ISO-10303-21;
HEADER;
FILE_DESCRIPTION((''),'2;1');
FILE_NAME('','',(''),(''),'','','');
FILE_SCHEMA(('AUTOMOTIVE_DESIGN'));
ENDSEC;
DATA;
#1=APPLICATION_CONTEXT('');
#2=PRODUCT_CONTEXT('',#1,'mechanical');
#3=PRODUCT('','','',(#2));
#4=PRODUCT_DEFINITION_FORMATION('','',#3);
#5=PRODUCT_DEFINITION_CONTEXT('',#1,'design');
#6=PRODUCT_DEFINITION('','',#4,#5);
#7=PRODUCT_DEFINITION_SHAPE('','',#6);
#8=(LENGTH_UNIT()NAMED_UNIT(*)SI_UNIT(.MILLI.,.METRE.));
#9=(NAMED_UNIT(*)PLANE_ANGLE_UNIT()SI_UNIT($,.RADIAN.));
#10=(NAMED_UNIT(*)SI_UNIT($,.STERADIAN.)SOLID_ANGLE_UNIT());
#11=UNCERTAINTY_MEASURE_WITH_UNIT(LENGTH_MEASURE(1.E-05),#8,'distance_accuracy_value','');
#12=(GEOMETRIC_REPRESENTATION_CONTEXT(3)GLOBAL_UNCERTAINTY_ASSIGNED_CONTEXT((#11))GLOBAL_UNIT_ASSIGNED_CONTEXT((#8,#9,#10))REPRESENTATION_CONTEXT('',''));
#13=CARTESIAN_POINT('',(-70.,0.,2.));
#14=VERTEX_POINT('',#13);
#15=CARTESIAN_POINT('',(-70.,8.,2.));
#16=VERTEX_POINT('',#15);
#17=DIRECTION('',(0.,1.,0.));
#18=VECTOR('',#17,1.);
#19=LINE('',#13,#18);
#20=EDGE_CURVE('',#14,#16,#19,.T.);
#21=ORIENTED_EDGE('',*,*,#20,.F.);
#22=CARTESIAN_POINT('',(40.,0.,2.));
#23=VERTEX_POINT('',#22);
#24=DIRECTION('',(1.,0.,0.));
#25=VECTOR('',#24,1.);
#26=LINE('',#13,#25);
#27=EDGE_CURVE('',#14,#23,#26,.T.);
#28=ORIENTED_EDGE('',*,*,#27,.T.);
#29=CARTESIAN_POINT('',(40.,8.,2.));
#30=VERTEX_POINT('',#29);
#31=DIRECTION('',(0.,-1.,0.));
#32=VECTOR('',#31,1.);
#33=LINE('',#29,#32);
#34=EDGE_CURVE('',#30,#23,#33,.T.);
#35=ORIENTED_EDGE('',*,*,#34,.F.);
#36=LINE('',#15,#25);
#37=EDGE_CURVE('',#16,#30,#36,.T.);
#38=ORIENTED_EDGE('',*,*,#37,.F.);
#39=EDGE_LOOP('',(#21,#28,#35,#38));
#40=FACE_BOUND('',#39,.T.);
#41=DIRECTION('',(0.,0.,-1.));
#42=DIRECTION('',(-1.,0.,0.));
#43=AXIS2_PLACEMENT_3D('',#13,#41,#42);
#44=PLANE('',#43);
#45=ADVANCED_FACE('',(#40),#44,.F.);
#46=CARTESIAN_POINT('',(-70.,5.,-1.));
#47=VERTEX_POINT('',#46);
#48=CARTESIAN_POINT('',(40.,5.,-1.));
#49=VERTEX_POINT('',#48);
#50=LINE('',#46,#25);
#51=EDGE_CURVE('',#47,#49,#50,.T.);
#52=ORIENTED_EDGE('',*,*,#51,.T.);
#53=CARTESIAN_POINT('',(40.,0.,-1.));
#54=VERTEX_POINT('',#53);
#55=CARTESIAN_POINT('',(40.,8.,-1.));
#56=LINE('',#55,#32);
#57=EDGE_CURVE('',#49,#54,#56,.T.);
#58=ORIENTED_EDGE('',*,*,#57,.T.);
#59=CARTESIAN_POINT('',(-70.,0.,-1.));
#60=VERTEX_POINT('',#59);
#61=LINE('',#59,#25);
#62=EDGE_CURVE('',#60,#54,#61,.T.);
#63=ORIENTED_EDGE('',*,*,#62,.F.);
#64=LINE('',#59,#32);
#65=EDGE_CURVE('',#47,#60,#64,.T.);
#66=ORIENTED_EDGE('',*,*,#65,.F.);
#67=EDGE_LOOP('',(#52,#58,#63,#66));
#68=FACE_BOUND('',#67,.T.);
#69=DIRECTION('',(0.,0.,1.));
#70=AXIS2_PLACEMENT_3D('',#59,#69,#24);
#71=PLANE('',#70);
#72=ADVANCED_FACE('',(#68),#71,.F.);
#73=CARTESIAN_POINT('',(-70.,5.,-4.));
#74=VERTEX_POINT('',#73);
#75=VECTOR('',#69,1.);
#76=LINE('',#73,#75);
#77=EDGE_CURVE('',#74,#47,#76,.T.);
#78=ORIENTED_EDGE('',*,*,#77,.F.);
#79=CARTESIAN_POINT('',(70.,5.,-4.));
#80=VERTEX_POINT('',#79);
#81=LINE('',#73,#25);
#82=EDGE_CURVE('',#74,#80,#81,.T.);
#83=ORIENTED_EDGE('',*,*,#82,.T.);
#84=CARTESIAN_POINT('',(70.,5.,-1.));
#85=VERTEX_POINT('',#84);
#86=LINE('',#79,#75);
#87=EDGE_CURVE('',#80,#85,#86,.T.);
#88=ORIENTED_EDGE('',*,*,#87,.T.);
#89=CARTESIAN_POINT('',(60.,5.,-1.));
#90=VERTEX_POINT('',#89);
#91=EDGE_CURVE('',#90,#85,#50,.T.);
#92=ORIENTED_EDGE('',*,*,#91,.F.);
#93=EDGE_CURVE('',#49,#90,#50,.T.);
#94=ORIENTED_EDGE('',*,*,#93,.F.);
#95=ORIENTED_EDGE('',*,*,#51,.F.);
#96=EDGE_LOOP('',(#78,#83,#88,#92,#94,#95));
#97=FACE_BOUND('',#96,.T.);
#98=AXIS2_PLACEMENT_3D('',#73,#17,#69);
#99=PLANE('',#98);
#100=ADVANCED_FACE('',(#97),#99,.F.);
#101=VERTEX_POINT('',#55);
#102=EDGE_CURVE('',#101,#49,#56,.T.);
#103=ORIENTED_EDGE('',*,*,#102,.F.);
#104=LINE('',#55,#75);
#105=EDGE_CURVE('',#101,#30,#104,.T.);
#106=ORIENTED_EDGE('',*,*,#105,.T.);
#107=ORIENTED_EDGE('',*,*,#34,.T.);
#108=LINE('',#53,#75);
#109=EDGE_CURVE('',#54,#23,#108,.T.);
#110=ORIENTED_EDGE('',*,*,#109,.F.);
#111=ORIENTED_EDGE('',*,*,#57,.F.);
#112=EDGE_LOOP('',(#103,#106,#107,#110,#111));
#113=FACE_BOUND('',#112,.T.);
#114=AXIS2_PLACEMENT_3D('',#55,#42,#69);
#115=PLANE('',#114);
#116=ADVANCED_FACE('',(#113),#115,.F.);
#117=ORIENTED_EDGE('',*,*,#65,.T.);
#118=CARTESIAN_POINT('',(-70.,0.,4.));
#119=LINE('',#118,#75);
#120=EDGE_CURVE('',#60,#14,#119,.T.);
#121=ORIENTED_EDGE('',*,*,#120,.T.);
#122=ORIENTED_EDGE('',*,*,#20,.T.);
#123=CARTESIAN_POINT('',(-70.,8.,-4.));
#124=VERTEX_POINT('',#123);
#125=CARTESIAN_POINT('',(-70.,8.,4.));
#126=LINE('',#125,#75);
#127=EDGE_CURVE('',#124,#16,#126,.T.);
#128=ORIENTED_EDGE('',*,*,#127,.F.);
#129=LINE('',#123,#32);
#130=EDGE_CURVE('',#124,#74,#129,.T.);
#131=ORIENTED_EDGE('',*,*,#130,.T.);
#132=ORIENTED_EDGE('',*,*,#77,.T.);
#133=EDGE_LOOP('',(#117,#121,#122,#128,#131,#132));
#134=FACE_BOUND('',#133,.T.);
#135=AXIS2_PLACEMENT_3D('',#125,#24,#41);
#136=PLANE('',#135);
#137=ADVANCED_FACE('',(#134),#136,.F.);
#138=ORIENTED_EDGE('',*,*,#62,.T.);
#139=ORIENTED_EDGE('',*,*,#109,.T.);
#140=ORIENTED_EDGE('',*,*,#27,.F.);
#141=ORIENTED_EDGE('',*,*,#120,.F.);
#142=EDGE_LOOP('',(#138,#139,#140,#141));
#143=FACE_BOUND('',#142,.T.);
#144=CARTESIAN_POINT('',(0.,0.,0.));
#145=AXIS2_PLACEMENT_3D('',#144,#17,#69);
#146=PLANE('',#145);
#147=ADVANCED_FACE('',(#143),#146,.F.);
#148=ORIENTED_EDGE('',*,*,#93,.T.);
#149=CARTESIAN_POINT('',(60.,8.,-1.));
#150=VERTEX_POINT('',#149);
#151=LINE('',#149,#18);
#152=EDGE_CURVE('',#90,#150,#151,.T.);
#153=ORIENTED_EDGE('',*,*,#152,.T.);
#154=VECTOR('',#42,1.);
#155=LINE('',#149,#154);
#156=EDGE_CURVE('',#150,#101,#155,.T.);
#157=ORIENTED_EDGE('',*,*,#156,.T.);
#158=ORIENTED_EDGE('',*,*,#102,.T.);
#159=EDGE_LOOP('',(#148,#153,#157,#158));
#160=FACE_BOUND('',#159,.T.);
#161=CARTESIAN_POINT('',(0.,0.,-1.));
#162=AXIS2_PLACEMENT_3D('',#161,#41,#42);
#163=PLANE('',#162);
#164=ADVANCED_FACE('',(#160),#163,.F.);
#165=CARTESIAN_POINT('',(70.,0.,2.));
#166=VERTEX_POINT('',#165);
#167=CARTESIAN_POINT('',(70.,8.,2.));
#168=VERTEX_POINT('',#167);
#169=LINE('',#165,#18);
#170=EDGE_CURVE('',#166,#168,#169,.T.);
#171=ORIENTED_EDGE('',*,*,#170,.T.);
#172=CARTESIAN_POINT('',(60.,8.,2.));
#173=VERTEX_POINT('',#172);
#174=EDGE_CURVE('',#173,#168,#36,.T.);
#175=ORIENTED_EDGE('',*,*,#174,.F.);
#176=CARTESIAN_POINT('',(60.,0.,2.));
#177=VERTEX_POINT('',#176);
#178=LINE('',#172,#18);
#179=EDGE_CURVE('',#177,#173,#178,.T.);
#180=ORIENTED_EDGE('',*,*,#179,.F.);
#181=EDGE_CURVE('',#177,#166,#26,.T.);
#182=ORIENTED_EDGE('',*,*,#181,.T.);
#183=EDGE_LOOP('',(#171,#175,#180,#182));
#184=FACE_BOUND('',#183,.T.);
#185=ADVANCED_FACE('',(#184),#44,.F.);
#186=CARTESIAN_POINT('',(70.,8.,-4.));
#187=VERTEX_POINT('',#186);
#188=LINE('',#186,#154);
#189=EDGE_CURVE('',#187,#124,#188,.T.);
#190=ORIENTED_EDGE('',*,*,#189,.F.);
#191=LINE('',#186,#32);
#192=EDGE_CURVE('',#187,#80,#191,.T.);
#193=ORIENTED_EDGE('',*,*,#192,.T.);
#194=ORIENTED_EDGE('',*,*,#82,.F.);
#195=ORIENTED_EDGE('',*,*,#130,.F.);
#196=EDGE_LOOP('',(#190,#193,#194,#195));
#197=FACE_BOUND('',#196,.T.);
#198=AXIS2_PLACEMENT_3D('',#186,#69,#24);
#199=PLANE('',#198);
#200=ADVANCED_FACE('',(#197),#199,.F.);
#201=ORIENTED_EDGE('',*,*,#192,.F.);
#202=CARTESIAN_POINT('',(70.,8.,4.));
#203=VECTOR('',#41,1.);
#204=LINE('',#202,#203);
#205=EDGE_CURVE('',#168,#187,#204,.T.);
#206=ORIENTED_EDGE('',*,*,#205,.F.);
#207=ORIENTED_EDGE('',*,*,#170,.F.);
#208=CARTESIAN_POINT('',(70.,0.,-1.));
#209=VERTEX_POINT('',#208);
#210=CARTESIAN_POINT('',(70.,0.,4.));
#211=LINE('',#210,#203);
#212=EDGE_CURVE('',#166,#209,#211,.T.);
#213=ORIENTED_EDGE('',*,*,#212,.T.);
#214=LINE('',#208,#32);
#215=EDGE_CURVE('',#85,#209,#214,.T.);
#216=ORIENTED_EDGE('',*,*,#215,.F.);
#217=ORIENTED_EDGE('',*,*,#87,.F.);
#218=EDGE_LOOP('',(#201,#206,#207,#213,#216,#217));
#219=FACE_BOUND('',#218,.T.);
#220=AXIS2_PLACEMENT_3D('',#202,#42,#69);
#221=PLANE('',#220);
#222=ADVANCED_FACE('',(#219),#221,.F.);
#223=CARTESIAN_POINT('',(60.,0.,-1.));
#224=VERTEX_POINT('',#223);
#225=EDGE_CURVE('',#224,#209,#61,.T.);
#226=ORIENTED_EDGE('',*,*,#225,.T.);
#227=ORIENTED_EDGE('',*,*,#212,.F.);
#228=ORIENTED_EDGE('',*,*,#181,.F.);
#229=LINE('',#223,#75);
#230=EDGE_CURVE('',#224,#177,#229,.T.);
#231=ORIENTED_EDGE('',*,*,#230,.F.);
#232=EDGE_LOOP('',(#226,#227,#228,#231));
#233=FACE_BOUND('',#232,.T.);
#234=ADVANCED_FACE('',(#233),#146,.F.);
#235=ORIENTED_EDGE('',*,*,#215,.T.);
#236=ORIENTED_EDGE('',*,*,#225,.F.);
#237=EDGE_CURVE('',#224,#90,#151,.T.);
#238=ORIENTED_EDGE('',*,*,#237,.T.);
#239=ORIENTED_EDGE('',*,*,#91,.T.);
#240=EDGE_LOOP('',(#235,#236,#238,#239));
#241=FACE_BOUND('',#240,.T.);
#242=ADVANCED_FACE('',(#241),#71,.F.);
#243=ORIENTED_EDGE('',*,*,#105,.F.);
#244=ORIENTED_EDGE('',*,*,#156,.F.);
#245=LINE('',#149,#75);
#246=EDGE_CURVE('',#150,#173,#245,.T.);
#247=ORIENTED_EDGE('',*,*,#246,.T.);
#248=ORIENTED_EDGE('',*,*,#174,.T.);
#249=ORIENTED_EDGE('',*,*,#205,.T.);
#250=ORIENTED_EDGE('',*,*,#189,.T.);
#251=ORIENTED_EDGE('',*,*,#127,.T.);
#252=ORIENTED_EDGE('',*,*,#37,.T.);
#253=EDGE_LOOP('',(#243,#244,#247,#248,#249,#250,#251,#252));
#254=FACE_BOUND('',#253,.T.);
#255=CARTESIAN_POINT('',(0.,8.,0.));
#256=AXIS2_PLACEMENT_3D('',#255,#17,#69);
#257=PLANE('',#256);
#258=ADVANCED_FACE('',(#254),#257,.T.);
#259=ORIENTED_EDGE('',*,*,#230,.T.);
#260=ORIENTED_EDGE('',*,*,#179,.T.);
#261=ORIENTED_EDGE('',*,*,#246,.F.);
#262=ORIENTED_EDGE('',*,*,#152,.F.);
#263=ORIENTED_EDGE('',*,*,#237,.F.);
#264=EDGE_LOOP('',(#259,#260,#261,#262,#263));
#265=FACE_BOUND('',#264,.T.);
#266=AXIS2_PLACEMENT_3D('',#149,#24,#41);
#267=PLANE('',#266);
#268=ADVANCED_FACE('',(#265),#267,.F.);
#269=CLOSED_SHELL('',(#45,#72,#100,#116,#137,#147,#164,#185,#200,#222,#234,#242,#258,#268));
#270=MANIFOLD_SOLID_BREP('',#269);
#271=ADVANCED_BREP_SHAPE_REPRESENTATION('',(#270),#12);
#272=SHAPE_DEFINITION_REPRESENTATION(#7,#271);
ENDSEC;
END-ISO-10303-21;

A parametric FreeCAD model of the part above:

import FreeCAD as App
import Part
import Sketcher

doc = App.newDocument("Part")
params = doc.addObject("Spreadsheet::Sheet", "Params")
for row, (alias, value) in enumerate([
    ("sketch1_width", "140 mm"),
    ("sketch1_height", "8 mm"),
    ("pad1_length", "8 mm"),
    ("sketch2_width", "5 mm"),
    ("sketch2_width2", "8 mm"),
    ("sketch2_height", "3 mm"),
    ("sketch2_height2", "2 mm"),
    ("pocket1_length", "140 mm"),
    ("sketch3_width", "20 mm"),
    ("sketch3_height", "8 mm"),
    ("pocket2_length", "3 mm"),
], start=1):
    params.set(f"A{row}", alias)
    params.set(f"B{row}", "=" + value)
    params.setAlias(f"B{row}", alias)

body = doc.addObject("PartDesign::Body", "Body")

sketch1 = body.newObject("Sketcher::SketchObject", "Sketch")
sketch1.AttachmentSupport = (doc.getObject("XZ_Plane"), [""])
sketch1.MapMode = "FlatFace"
sketch1.addGeometry(Part.LineSegment(App.Vector(-70, -4, 0), App.Vector(-70, 4, 0)), False)
sketch1.addGeometry(Part.LineSegment(App.Vector(-70, 4, 0), App.Vector(70, 4, 0)), False)
sketch1.addGeometry(Part.LineSegment(App.Vector(70, 4, 0), App.Vector(70, -4, 0)), False)
sketch1.addGeometry(Part.LineSegment(App.Vector(70, -4, 0), App.Vector(-70, -4, 0)), False)
sketch1.addConstraint(Sketcher.Constraint("Coincident", 0, 2, 1, 1))
sketch1.addConstraint(Sketcher.Constraint("Coincident", 1, 2, 2, 1))
sketch1.addConstraint(Sketcher.Constraint("Coincident", 2, 2, 3, 1))
sketch1.addConstraint(Sketcher.Constraint("Coincident", 3, 2, 0, 1))
sketch1.addConstraint(Sketcher.Constraint("Vertical", 0))
sketch1.addConstraint(Sketcher.Constraint("Horizontal", 1))
sketch1.addConstraint(Sketcher.Constraint("Vertical", 2))
sketch1.addConstraint(Sketcher.Constraint("Horizontal", 3))
sketch1.addConstraint(Sketcher.Constraint("Symmetric", 0, 2, 2, 2, -1, 1))
sketch1.addConstraint(Sketcher.Constraint("DistanceX", 1, 1, 1, 2, 140.0))
sketch1.addConstraint(Sketcher.Constraint("DistanceY", 0, 1, 0, 2, 8.0))
sketch1.setExpression("Constraints[9]", "Params.sketch1_width")
sketch1.setExpression("Constraints[10]", "Params.sketch1_height")
pad1 = body.newObject("PartDesign::Pad", "Pad")
pad1.Profile = sketch1
pad1.setExpression("Length", "Params.pad1_length")
pad1.Reversed = True

sketch2 = body.newObject("Sketcher::SketchObject", "Sketch001")
sketch2.AttachmentSupport = (doc.getObject("YZ_Plane"), [""])
sketch2.MapMode = "FlatFace"
sketch2.AttachmentOffset = App.Placement(App.Vector(0, 0, 70), App.Rotation())
sketch2.addGeometry(Part.LineSegment(App.Vector(5, -1, 0), App.Vector(0, -1, 0)), False)
sketch2.addGeometry(Part.LineSegment(App.Vector(0, -1, 0), App.Vector(0, -4, 0)), False)
sketch2.addGeometry(Part.LineSegment(App.Vector(0, -4, 0), App.Vector(5, -4, 0)), False)
sketch2.addGeometry(Part.LineSegment(App.Vector(5, -4, 0), App.Vector(5, -1, 0)), False)
sketch2.addGeometry(Part.LineSegment(App.Vector(8, 4, 0), App.Vector(0, 4, 0)), False)
sketch2.addGeometry(Part.LineSegment(App.Vector(0, 4, 0), App.Vector(0, 2, 0)), False)
sketch2.addGeometry(Part.LineSegment(App.Vector(0, 2, 0), App.Vector(8, 2, 0)), False)
sketch2.addGeometry(Part.LineSegment(App.Vector(8, 2, 0), App.Vector(8, 4, 0)), False)
sketch2.addConstraint(Sketcher.Constraint("Coincident", 0, 2, 1, 1))
sketch2.addConstraint(Sketcher.Constraint("Coincident", 1, 2, 2, 1))
sketch2.addConstraint(Sketcher.Constraint("Coincident", 2, 2, 3, 1))
sketch2.addConstraint(Sketcher.Constraint("Coincident", 3, 2, 0, 1))
sketch2.addConstraint(Sketcher.Constraint("Coincident", 4, 2, 5, 1))
sketch2.addConstraint(Sketcher.Constraint("Coincident", 5, 2, 6, 1))
sketch2.addConstraint(Sketcher.Constraint("Coincident", 6, 2, 7, 1))
sketch2.addConstraint(Sketcher.Constraint("Coincident", 7, 2, 4, 1))
sketch2.addConstraint(Sketcher.Constraint("Horizontal", 0))
sketch2.addConstraint(Sketcher.Constraint("Vertical", 1))
sketch2.addConstraint(Sketcher.Constraint("Horizontal", 2))
sketch2.addConstraint(Sketcher.Constraint("Vertical", 3))
sketch2.addConstraint(Sketcher.Constraint("Horizontal", 4))
sketch2.addConstraint(Sketcher.Constraint("Vertical", 5))
sketch2.addConstraint(Sketcher.Constraint("Horizontal", 6))
sketch2.addConstraint(Sketcher.Constraint("Vertical", 7))
sketch2.addConstraint(Sketcher.Constraint("Symmetric", 1, 2, 4, 2, -1, 1))
sketch2.addConstraint(Sketcher.Constraint("PointOnObject", 0, 2, -2))
sketch2.addConstraint(Sketcher.Constraint("DistanceX", 0, 2, 0, 1, 5.0))
sketch2.addConstraint(Sketcher.Constraint("DistanceX", 4, 2, 4, 1, 8.0))
sketch2.addConstraint(Sketcher.Constraint("DistanceY", 1, 2, 1, 1, 3.0))
sketch2.addConstraint(Sketcher.Constraint("DistanceY", 5, 2, 5, 1, 2.0))
sketch2.addConstraint(Sketcher.Constraint("DistanceY", 0, 2, -1, 1, 1.0))
sketch2.setExpression("Constraints[18]", "Params.sketch2_width")
sketch2.setExpression("Constraints[19]", "Params.sketch2_width2")
sketch2.setExpression("Constraints[20]", "Params.sketch2_height")
sketch2.setExpression("Constraints[21]", "Params.sketch2_height2")
pocket1 = body.newObject("PartDesign::Pocket", "Pocket")
pocket1.Profile = sketch2
pocket1.setExpression("Length", "Params.pocket1_length")

sketch3 = body.newObject("Sketcher::SketchObject", "Sketch002")
sketch3.AttachmentSupport = (doc.getObject("XY_Plane"), [""])
sketch3.MapMode = "FlatFace"
sketch3.AttachmentOffset = App.Placement(App.Vector(0, 0, 2), App.Rotation())
sketch3.addGeometry(Part.LineSegment(App.Vector(40, 8, 0), App.Vector(40, 0, 0)), False)
sketch3.addGeometry(Part.LineSegment(App.Vector(40, 0, 0), App.Vector(60, 0, 0)), False)
sketch3.addGeometry(Part.LineSegment(App.Vector(60, 0, 0), App.Vector(60, 8, 0)), False)
sketch3.addGeometry(Part.LineSegment(App.Vector(60, 8, 0), App.Vector(40, 8, 0)), False)
sketch3.addConstraint(Sketcher.Constraint("Coincident", 0, 2, 1, 1))
sketch3.addConstraint(Sketcher.Constraint("Coincident", 1, 2, 2, 1))
sketch3.addConstraint(Sketcher.Constraint("Coincident", 2, 2, 3, 1))
sketch3.addConstraint(Sketcher.Constraint("Coincident", 3, 2, 0, 1))
sketch3.addConstraint(Sketcher.Constraint("Vertical", 0))
sketch3.addConstraint(Sketcher.Constraint("Horizontal", 1))
sketch3.addConstraint(Sketcher.Constraint("Vertical", 2))
sketch3.addConstraint(Sketcher.Constraint("Horizontal", 3))
sketch3.addConstraint(Sketcher.Constraint("PointOnObject", 0, 2, -1))
sketch3.addConstraint(Sketcher.Constraint("DistanceX", 1, 1, 1, 2, 20.0))
sketch3.addConstraint(Sketcher.Constraint("DistanceY", 0, 2, 0, 1, 8.0))
sketch3.addConstraint(Sketcher.Constraint("DistanceX", -1, 1, 0, 2, 40.0))
sketch3.setExpression("Constraints[9]", "Params.sketch3_width")
sketch3.setExpression("Constraints[10]", "Params.sketch3_height")
pocket2 = body.newObject("PartDesign::Pocket", "Pocket001")
pocket2.Profile = sketch3
pocket2.setExpression("Length", "Params.pocket2_length")

doc.recompute()
